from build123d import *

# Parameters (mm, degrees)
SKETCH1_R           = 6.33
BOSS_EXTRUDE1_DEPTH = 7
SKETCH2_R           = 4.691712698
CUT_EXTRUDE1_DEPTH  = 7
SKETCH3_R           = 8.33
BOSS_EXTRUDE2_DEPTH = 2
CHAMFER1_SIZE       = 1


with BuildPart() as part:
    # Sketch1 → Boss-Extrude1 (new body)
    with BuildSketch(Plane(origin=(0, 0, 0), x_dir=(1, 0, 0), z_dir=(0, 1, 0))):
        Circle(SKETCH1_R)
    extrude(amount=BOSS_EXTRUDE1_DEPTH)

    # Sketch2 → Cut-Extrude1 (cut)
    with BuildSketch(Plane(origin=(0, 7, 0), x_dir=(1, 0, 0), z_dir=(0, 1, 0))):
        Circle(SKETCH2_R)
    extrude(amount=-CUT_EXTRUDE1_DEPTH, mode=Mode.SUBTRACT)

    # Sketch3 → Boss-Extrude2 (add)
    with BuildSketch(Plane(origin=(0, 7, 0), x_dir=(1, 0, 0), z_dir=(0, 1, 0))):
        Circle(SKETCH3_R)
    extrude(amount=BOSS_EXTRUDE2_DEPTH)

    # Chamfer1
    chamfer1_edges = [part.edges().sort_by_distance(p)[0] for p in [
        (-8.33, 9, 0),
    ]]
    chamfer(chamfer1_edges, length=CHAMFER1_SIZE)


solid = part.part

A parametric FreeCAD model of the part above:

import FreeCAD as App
import Part
import Sketcher
from FreeCAD import Vector
Q = App.Units.Quantity


def edges_at(feature, points):
    """Names of the edges that pass closest to the given points."""
    edges = feature.Shape.Edges
    near = lambda p: min(range(len(edges)), key=lambda i: edges[i].distToShape(Part.Vertex(*p))[0])
    return sorted({f"Edge{near(p) + 1}" for p in points})

doc = App.newDocument("Part")
params = doc.addObject("Spreadsheet::Sheet", "Params")
for row, (alias, value) in enumerate([
    ("sketch1_diameter", "12.66 mm"),
    ("pad1_length", "7 mm"),
    ("pocket1_length", "7 mm"),
    ("sketch3_diameter", "16.66 mm"),
    ("pad2_length", "2 mm"),
    ("chamfer_size", "1 mm"),
], start=1):
    params.set(f"A{row}", alias)
    params.set(f"B{row}", "=" + value)
    params.setAlias(f"B{row}", alias)

body = doc.addObject("PartDesign::Body", "Body")

sketch1 = body.newObject("Sketcher::SketchObject", "Sketch")
sketch1.AttachmentSupport = (doc.getObject("XZ_Plane"), [""])
sketch1.MapMode = "FlatFace"
sketch1.addGeometry(Part.Circle(Vector(0, 0, 0), Vector(0, 0, 1), 6), False)
sketch1.addConstraint([
    Sketcher.Constraint("Coincident", 0, 3, -1, 1),
    Sketcher.Constraint("Diameter", 0, Q("12.66 mm")),
])
sketch1.setExpression("Constraints[1]", "Params.sketch1_diameter")
pad1 = body.newObject("PartDesign::Pad", "Pad")
pad1.Profile = sketch1
pad1.setExpression("Length", "Params.pad1_length")
pad1.Reversed = True

sketch2 = body.newObject("Sketcher::SketchObject", "Sketch001")
sketch2.AttachmentSupport = (doc.getObject("XZ_Plane"), [""])
sketch2.MapMode = "FlatFace"
sketch2.AttachmentOffset = App.Placement(Vector(0, 0, -7), App.Rotation())
sketch2.addGeometry(Part.Circle(Vector(0, 0, 0), Vector(0, 0, 1), 4.7), False)
sketch2.addConstraint([
    Sketcher.Constraint("Coincident", 0, 3, -1, 1),
    Sketcher.Constraint("Diameter", 0, Q("9.383425 mm")),
])
pocket1 = body.newObject("PartDesign::Pocket", "Pocket")
pocket1.Profile = sketch2
pocket1.setExpression("Length", "Params.pocket1_length")
pocket1.Reversed = True

sketch3 = body.newObject("Sketcher::SketchObject", "Sketch002")
sketch3.AttachmentSupport = (doc.getObject("XZ_Plane"), [""])
sketch3.MapMode = "FlatFace"
sketch3.AttachmentOffset = App.Placement(Vector(0, 0, -7), App.Rotation())
sketch3.addGeometry(Part.Circle(Vector(0, 0, 0), Vector(0, 0, 1), 8), False)
sketch3.addConstraint([
    Sketcher.Constraint("Coincident", 0, 3, -1, 1),
    Sketcher.Constraint("Diameter", 0, Q("16.66 mm")),
])
sketch3.setExpression("Constraints[1]", "Params.sketch3_diameter")
pad2 = body.newObject("PartDesign::Pad", "Pad001")
pad2.Profile = sketch3
pad2.setExpression("Length", "Params.pad2_length")
pad2.Reversed = True
doc.recompute()

chamfer = body.newObject("PartDesign::Chamfer", "Chamfer")
chamfer.Base = (pad2, edges_at(pad2, [(-8.33, 9, 0)]))
chamfer.setExpression("Size", "Params.chamfer_size")

doc.recompute()
